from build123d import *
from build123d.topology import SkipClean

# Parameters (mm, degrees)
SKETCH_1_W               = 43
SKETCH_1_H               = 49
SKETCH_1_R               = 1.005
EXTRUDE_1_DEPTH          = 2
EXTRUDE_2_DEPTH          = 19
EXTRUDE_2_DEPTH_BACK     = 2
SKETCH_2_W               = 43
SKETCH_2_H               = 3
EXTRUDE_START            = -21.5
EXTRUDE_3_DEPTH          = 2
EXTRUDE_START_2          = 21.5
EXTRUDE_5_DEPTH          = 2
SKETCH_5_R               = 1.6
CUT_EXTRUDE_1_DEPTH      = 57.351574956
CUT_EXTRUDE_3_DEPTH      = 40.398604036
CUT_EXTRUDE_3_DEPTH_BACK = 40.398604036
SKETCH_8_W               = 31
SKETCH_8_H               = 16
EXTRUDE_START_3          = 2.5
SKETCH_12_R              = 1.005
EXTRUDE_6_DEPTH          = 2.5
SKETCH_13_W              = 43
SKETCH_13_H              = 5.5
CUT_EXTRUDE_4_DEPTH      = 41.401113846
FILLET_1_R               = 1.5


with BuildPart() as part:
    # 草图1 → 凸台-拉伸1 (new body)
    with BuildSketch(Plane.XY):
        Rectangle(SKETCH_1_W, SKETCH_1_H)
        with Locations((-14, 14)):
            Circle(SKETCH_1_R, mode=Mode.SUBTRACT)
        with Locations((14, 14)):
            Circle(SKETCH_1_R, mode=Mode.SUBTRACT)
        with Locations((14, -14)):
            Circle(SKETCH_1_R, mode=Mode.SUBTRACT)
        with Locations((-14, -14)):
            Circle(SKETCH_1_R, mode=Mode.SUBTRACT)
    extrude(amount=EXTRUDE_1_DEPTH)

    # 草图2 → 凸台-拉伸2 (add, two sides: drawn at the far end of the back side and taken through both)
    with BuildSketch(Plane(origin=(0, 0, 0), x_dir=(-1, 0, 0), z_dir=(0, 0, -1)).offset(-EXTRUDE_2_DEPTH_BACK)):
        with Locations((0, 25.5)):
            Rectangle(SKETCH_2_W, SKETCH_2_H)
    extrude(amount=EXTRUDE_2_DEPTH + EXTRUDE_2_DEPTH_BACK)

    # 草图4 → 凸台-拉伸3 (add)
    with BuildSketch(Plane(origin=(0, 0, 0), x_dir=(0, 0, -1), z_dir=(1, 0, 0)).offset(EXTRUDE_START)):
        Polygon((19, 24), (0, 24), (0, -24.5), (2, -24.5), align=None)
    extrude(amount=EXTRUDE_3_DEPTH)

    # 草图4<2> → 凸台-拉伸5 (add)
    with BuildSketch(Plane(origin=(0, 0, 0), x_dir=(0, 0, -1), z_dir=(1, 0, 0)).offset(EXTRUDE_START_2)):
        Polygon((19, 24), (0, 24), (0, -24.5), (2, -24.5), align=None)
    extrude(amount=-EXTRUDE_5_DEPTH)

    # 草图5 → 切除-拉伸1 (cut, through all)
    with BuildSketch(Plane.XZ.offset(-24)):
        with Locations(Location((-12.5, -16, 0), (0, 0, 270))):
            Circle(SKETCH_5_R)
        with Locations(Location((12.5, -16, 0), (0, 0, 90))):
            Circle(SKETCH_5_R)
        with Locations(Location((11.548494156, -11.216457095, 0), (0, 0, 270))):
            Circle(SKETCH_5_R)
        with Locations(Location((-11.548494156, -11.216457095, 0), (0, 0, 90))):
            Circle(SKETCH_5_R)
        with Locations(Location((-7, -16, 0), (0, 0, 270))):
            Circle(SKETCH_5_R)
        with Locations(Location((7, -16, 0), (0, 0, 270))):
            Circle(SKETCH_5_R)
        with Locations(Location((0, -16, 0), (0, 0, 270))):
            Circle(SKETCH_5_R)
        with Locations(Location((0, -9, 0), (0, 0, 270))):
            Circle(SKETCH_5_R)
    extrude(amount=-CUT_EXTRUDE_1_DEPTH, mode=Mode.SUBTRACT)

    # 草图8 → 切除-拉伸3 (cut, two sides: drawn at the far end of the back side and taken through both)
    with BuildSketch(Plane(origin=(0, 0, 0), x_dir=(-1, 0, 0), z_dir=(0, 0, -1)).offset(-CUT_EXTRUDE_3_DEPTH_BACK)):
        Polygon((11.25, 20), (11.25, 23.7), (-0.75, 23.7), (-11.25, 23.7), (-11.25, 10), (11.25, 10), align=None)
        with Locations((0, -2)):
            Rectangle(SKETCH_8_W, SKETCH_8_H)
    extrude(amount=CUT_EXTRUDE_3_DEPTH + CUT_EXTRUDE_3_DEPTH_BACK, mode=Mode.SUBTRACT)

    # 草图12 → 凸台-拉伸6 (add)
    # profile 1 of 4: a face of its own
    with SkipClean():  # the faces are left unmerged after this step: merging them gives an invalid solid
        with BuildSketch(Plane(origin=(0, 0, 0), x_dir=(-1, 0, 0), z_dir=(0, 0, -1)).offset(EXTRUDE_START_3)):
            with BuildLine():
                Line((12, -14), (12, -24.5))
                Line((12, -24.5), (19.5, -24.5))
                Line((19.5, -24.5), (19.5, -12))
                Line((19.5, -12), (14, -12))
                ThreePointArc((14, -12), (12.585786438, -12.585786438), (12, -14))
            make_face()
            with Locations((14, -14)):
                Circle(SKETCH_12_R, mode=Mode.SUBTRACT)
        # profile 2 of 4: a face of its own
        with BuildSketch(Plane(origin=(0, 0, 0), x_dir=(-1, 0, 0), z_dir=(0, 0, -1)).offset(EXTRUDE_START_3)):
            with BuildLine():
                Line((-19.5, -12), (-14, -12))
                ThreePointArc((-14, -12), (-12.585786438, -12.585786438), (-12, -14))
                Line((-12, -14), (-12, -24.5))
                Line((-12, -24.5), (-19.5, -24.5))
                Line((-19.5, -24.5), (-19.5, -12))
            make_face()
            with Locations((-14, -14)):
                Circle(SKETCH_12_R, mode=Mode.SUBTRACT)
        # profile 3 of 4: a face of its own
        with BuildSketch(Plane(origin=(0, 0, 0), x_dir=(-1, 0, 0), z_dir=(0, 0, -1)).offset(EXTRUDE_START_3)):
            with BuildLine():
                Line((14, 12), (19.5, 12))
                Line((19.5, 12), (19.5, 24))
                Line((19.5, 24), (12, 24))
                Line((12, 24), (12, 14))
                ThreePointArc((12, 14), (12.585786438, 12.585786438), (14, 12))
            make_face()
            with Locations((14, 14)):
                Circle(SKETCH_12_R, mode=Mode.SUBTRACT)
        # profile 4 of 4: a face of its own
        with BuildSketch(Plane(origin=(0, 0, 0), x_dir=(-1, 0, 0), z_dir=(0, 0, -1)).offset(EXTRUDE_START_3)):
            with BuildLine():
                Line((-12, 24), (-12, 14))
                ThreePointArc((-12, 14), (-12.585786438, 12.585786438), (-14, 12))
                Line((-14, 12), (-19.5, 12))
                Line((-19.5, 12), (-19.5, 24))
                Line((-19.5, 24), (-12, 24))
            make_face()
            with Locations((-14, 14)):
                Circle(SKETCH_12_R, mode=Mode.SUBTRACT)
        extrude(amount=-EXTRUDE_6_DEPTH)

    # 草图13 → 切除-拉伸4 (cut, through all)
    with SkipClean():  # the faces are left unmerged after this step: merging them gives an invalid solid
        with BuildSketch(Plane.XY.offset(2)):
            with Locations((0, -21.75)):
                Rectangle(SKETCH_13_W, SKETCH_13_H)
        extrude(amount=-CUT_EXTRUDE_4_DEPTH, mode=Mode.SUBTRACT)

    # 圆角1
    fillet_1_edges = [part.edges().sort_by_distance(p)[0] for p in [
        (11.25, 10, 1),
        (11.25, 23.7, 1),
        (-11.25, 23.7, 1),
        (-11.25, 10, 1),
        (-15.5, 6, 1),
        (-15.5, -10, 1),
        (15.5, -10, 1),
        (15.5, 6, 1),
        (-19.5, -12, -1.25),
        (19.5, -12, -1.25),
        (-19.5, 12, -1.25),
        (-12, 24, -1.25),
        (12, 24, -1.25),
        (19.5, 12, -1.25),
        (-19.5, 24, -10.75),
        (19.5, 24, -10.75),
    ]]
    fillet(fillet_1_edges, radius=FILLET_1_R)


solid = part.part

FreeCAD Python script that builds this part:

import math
import FreeCAD as App
import Part
import Sketcher
Q = App.Units.Quantity


def edges_at(feature, points):
    """Names of the edges that pass closest to the given points."""
    edges = feature.Shape.Edges
    near = lambda p: min(range(len(edges)), key=lambda i: edges[i].distToShape(Part.Vertex(*p))[0])
    return sorted({f"Edge{near(p) + 1}" for p in points})


def add_polygon(sketch, points):
    """Adds a closed chain of lines whose ends are joined by coincident constraints."""
    first, n = sketch.GeometryCount, len(points)
    for a, b in zip(points, points[1:] + points[:1]):
        sketch.addGeometry(Part.LineSegment(App.Vector(*a, 0), App.Vector(*b, 0)), False)
    for i in range(n):
        sketch.addConstraint(Sketcher.Constraint("Coincident", first + i, 2, first + (i + 1) % n, 1))

doc = App.newDocument("Part")
params = doc.addObject("Spreadsheet::Sheet", "Params")
for row, (alias, value) in enumerate([
    ("sketch1_diameter", "2.01 mm"),
    ("sketch1_width", "43 mm"),
    ("sketch1_height", "49 mm"),
    ("pad1_length", "2 mm"),
    ("sketch2_width", "43 mm"),
    ("sketch2_height", "3 mm"),
    ("pad2_length", "19 mm"),
    ("pad2_length2", "2 mm"),
    ("sketch3_height", "19 mm"),
    ("sketch3_height2", "2 mm"),
    ("sketch3_width", "48.5 mm"),
    ("pad3_length", "2 mm"),
    ("sketch4_height", "19 mm"),
    ("sketch4_height2", "2 mm"),
    ("sketch4_width", "48.5 mm"),
    ("pad4_length", "2 mm"),
    ("sketch5_diameter", "3.2 mm"),
    ("sketch6_width", "31 mm"),
    ("sketch6_height", "16 mm"),
    ("sketch6_width2", "22.5 mm"),
    ("sketch6_height2", "13.7 mm"),
    ("sketch7_radius", "2 mm"),
    ("sketch7_diameter", "2.01 mm"),
    ("sketch7_height", "12 mm"),
    ("sketch7_width", "7.5 mm"),
    ("sketch7_height2", "10.5 mm"),
    ("pad5_length", "2.5 mm"),
    ("sketch8_width", "43 mm"),
    ("sketch8_height", "5.5 mm"),
    ("fillet_radius", "1.5 mm"),
], start=1):
    params.set(f"A{row}", alias)
    params.set(f"B{row}", "=" + value)
    params.setAlias(f"B{row}", alias)

body = doc.addObject("PartDesign::Body", "Body")

sketch1 = body.newObject("Sketcher::SketchObject", "Sketch")
sketch1.AttachmentSupport = (doc.getObject("XY_Plane"), [""])
sketch1.MapMode = "FlatFace"
add_polygon(sketch1, [(-21.5, 24.5), (-21.5, -24.5), (21.5, -24.5), (21.5, 24.5)])
sketch1.addGeometry(Part.Circle(App.Vector(-14, -14, 0), App.Vector(0, 0, 1), 1), False)
sketch1.addGeometry(Part.Circle(App.Vector(14, -14, 0), App.Vector(0, 0, 1), 1), False)
sketch1.addGeometry(Part.Circle(App.Vector(-14, 14, 0), App.Vector(0, 0, 1), 1), False)
sketch1.addGeometry(Part.Circle(App.Vector(14, 14, 0), App.Vector(0, 0, 1), 1), False)
sketch1.addConstraint([
    Sketcher.Constraint("Vertical", 0),
    Sketcher.Constraint("Horizontal", 1),
    Sketcher.Constraint("Vertical", 2),
    Sketcher.Constraint("Horizontal", 3),
    Sketcher.Constraint("Equal", 4, 5),
    Sketcher.Constraint("Equal", 5, 6),
    Sketcher.Constraint("Equal", 6, 7),
    Sketcher.Constraint("Symmetric", 5, 3, 6, 3, -1, 1),
    Sketcher.Constraint("Symmetric", 4, 3, 7, 3, -1, 1),
    Sketcher.Constraint("Symmetric", 0, 2, 2, 2, -1, 1),
    Sketcher.Constraint("Symmetric", 4, 3, 5, 3, -2),
    Sketcher.Constraint("Diameter", 4, Q("2.01 mm")),
    Sketcher.Constraint("DistanceX", 1, 1, 1, 2, Q("43 mm")),
    Sketcher.Constraint("DistanceY", 0, 2, 0, 1, Q("49 mm")),
    Sketcher.Constraint("DistanceX", 4, 3, -1, 1, Q("14 mm")),
    Sketcher.Constraint("DistanceY", 4, 3, -1, 1, Q("14 mm")),
])
sketch1.setExpression("Constraints[15]", "Params.sketch1_diameter")
sketch1.setExpression("Constraints[16]", "Params.sketch1_width")
sketch1.setExpression("Constraints[17]", "Params.sketch1_height")
pad1 = body.newObject("PartDesign::Pad", "Pad")
pad1.Profile = sketch1
pad1.setExpression("Length", "Params.pad1_length")

sketch2 = body.newObject("Sketcher::SketchObject", "Sketch001")
sketch2.AttachmentSupport = (doc.getObject("XY_Plane"), [""])
sketch2.MapMode = "FlatFace"
add_polygon(sketch2, [(21.5, 27), (21.5, 24), (-21.5, 24), (-21.5, 27)])
sketch2.addConstraint([
    Sketcher.Constraint("Vertical", 0),
    Sketcher.Constraint("Horizontal", 1),
    Sketcher.Constraint("Vertical", 2),
    Sketcher.Constraint("Horizontal", 3),
    Sketcher.Constraint("DistanceX", 1, 2, 1, 1, Q("43 mm")),
    Sketcher.Constraint("DistanceY", 0, 2, 0, 1, Q("3 mm")),
    Sketcher.Constraint("DistanceY", -1, 1, 0, 2, Q("24 mm")),
    Sketcher.Constraint("DistanceX", -1, 1, 0, 2, Q("21.5 mm")),
])
sketch2.setExpression("Constraints[8]", "Params.sketch2_width")
sketch2.setExpression("Constraints[9]", "Params.sketch2_height")
pad2 = body.newObject("PartDesign::Pad", "Pad001")
pad2.Profile = sketch2
pad2.Type = "TwoLengths"
pad2.setExpression("Length", "Params.pad2_length")
pad2.setExpression("Length2", "Params.pad2_length2")
pad2.Reversed = True

sketch3 = body.newObject("Sketcher::SketchObject", "Sketch002")
sketch3.AttachmentSupport = (doc.getObject("YZ_Plane"), [""])
sketch3.MapMode = "FlatFace"
sketch3.AttachmentOffset = App.Placement(App.Vector(0, 0, -21.5), App.Rotation())
add_polygon(sketch3, [(24, -19), (24, 0), (-24.5, 0), (-24.5, -2)])
sketch3.addConstraint([
    Sketcher.Constraint("Vertical", 0),
    Sketcher.Constraint("Horizontal", 1),
    Sketcher.Constraint("Vertical", 2),
    Sketcher.Constraint("PointOnObject", 0, 2, -1),
    Sketcher.Constraint("DistanceY", 0, 1, 0, 2, Q("19 mm")),
    Sketcher.Constraint("DistanceY", 2, 2, 2, 1, Q("2 mm")),
    Sketcher.Constraint("DistanceX", 1, 2, 1, 1, Q("48.5 mm")),
    Sketcher.Constraint("DistanceX", -1, 1, 0, 2, Q("24 mm")),
])
sketch3.setExpression("Constraints[8]", "Params.sketch3_height")
sketch3.setExpression("Constraints[9]", "Params.sketch3_height2")
sketch3.setExpression("Constraints[10]", "Params.sketch3_width")
pad3 = body.newObject("PartDesign::Pad", "Pad002")
pad3.Profile = sketch3
pad3.setExpression("Length", "Params.pad3_length")

sketch4 = body.newObject("Sketcher::SketchObject", "Sketch003")
sketch4.AttachmentSupport = (doc.getObject("YZ_Plane"), [""])
sketch4.MapMode = "FlatFace"
sketch4.AttachmentOffset = App.Placement(App.Vector(0, 0, 21.5), App.Rotation())
add_polygon(sketch4, [(24, -19), (24, 0), (-24.5, 0), (-24.5, -2)])
sketch4.addConstraint([
    Sketcher.Constraint("Vertical", 0),
    Sketcher.Constraint("Horizontal", 1),
    Sketcher.Constraint("Vertical", 2),
    Sketcher.Constraint("PointOnObject", 0, 2, -1),
    Sketcher.Constraint("DistanceY", 0, 1, 0, 2, Q("19 mm")),
    Sketcher.Constraint("DistanceY", 2, 2, 2, 1, Q("2 mm")),
    Sketcher.Constraint("DistanceX", 1, 2, 1, 1, Q("48.5 mm")),
    Sketcher.Constraint("DistanceX", -1, 1, 0, 2, Q("24 mm")),
])
sketch4.setExpression("Constraints[8]", "Params.sketch4_height")
sketch4.setExpression("Constraints[9]", "Params.sketch4_height2")
sketch4.setExpression("Constraints[10]", "Params.sketch4_width")
pad4 = body.newObject("PartDesign::Pad", "Pad003")
pad4.Profile = sketch4
pad4.setExpression("Length", "Params.pad4_length")
pad4.Reversed = True

sketch5 = body.newObject("Sketcher::SketchObject", "Sketch004")
sketch5.AttachmentSupport = (doc.getObject("XZ_Plane"), [""])
sketch5.MapMode = "FlatFace"
sketch5.AttachmentOffset = App.Placement(App.Vector(0, 0, -24), App.Rotation())
sketch5.addGeometry([
    Part.Circle(App.Vector(-12.5, -16, 0), App.Vector(0, 0, 1), 1.6),
    Part.Circle(App.Vector(12.5, -16, 0), App.Vector(0, 0, 1), 1.6),
    Part.Circle(App.Vector(11.5, -11.2, 0), App.Vector(0, 0, 1), 1.6),
    Part.Circle(App.Vector(-11.5, -11.2, 0), App.Vector(0, 0, 1), 1.6),
    Part.Circle(App.Vector(-7, -16, 0), App.Vector(0, 0, 1), 1.6),
    Part.Circle(App.Vector(7, -16, 0), App.Vector(0, 0, 1), 1.6),
    Part.Circle(App.Vector(0, -16, 0), App.Vector(0, 0, 1), 1.6),
    Part.Circle(App.Vector(0, -9, 0), App.Vector(0, 0, 1), 1.6),
], False)
sketch5.addConstraint([
    Sketcher.Constraint("Equal", 0, 1),
    Sketcher.Constraint("Equal", 1, 2),
    Sketcher.Constraint("Equal", 2, 3),
    Sketcher.Constraint("Equal", 3, 4),
    Sketcher.Constraint("Equal", 4, 5),
    Sketcher.Constraint("Equal", 5, 6),
    Sketcher.Constraint("Equal", 6, 7),
    Sketcher.Constraint("Symmetric", 0, 3, 1, 3, -2),
    Sketcher.Constraint("Symmetric", 2, 3, 3, 3, -2),
    Sketcher.Constraint("Symmetric", 4, 3, 5, 3, -2),
    Sketcher.Constraint("PointOnObject", 6, 3, -2),
    Sketcher.Constraint("PointOnObject", 7, 3, -2),
    Sketcher.Constraint("Horizontal", 1, 3, 4, 3),
    Sketcher.Constraint("Horizontal", 5, 3, 6, 3),
    Sketcher.Constraint("Diameter", 0, Q("3.2 mm")),
    Sketcher.Constraint("DistanceY", 0, 3, -1, 1, Q("16 mm")),
    Sketcher.Constraint("DistanceX", 4, 3, -1, 1, Q("7 mm")),
    Sketcher.Constraint("DistanceY", 7, 3, -1, 1, Q("9 mm")),
    Sketcher.Constraint("DistanceX", 0, 3, 1, 3, Q("25 mm")),
    Sketcher.Constraint("DistanceX", 3, 3, 2, 3, Q("23.096988 mm")),
    Sketcher.Constraint("DistanceY", 2, 3, -1, 1, Q("11.216457 mm")),
])
sketch5.setExpression("Constraints[14]", "Params.sketch5_diameter")
pocket1 = body.newObject("PartDesign::Pocket", "Pocket")
pocket1.Profile = sketch5
pocket1.Type = "ThroughAll"

sketch6 = body.newObject("Sketcher::SketchObject", "Sketch005")
sketch6.AttachmentSupport = (doc.getObject("XY_Plane"), [""])
sketch6.MapMode = "FlatFace"
add_polygon(sketch6, [(-11, 24), (11, 24), (11, 10), (-11, 10)])
add_polygon(sketch6, [(16, 6), (16, -10), (-16, -10), (-16, 6)])
sketch6.addConstraint([
    Sketcher.Constraint("Horizontal", 0),
    Sketcher.Constraint("Vertical", 1),
    Sketcher.Constraint("Horizontal", 2),
    Sketcher.Constraint("Vertical", 3),
    Sketcher.Constraint("Vertical", 4),
    Sketcher.Constraint("Horizontal", 5),
    Sketcher.Constraint("Vertical", 6),
    Sketcher.Constraint("Horizontal", 7),
    Sketcher.Constraint("DistanceX", 5, 2, 5, 1, Q("31 mm")),
    Sketcher.Constraint("DistanceY", 4, 2, 4, 1, Q("16 mm")),
    Sketcher.Constraint("DistanceX", 0, 1, 0, 2, Q("22.5 mm")),
    Sketcher.Constraint("DistanceY", 1, 2, 1, 1, Q("13.7 mm")),
    Sketcher.Constraint("DistanceY", -1, 1, 1, 2, Q("10 mm")),
    Sketcher.Constraint("DistanceY", 4, 2, -1, 1, Q("10 mm")),
    Sketcher.Constraint("DistanceX", -1, 1, 4, 2, Q("15.5 mm")),
    Sketcher.Constraint("DistanceX", -1, 1, 0, 2, Q("11.25 mm")),
])
sketch6.setExpression("Constraints[16]", "Params.sketch6_width")
sketch6.setExpression("Constraints[17]", "Params.sketch6_height")
sketch6.setExpression("Constraints[18]", "Params.sketch6_width2")
sketch6.setExpression("Constraints[19]", "Params.sketch6_height2")
pocket2 = body.newObject("PartDesign::Pocket", "Pocket001")
pocket2.Profile = sketch6
pocket2.Type = "ThroughAll"
pocket2.Midplane = True

sketch7 = body.newObject("Sketcher::SketchObject", "Sketch006")
sketch7.AttachmentSupport = (doc.getObject("XY_Plane"), [""])
sketch7.MapMode = "FlatFace"
sketch7.AttachmentOffset = App.Placement(App.Vector(0, 0, -2.5), App.Rotation())
sketch7.addGeometry([
    Part.LineSegment(App.Vector(-12, -14, 0), App.Vector(-12, -24.5, 0)),
    Part.LineSegment(App.Vector(-12, -24.5, 0), App.Vector(-19.5, -24.5, 0)),
    Part.LineSegment(App.Vector(-19.5, -24.5, 0), App.Vector(-19.5, -12, 0)),
    Part.LineSegment(App.Vector(-19.5, -12, 0), App.Vector(-14, -12, 0)),
    Part.ArcOfCircle(Part.Circle(App.Vector(-14, -14, 0), App.Vector(0, 0, 1), 2), math.radians(0), math.radians(90)),
    Part.Circle(App.Vector(-14, -14, 0), App.Vector(0, 0, 1), 1),
    Part.LineSegment(App.Vector(14, -12, 0), App.Vector(19.5, -12, 0)),
    Part.LineSegment(App.Vector(19.5, -12, 0), App.Vector(19.5, -24.5, 0)),
    Part.LineSegment(App.Vector(19.5, -24.5, 0), App.Vector(12, -24.5, 0)),
    Part.LineSegment(App.Vector(12, -24.5, 0), App.Vector(12, -14, 0)),
    Part.ArcOfCircle(Part.Circle(App.Vector(14, -14, 0), App.Vector(0, 0, 1), 2), math.radians(90), math.radians(180)),
    Part.Circle(App.Vector(14, -14, 0), App.Vector(0, 0, 1), 1),
    Part.LineSegment(App.Vector(-14, 12, 0), App.Vector(-19.5, 12, 0)),
    Part.LineSegment(App.Vector(-19.5, 12, 0), App.Vector(-19.5, 24, 0)),
    Part.LineSegment(App.Vector(-19.5, 24, 0), App.Vector(-12, 24, 0)),
    Part.LineSegment(App.Vector(-12, 24, 0), App.Vector(-12, 14, 0)),
    Part.ArcOfCircle(Part.Circle(App.Vector(-14, 14, 0), App.Vector(0, 0, 1), 2), math.radians(-90), math.radians(0)),
    Part.Circle(App.Vector(-14, 14, 0), App.Vector(0, 0, 1), 1),
    Part.LineSegment(App.Vector(12, 14, 0), App.Vector(12, 24, 0)),
    Part.LineSegment(App.Vector(12, 24, 0), App.Vector(19.5, 24, 0)),
    Part.LineSegment(App.Vector(19.5, 24, 0), App.Vector(19.5, 12, 0)),
    Part.LineSegment(App.Vector(19.5, 12, 0), App.Vector(14, 12, 0)),
    Part.ArcOfCircle(Part.Circle(App.Vector(14, 14, 0), App.Vector(0, 0, 1), 2), math.radians(-180), math.radians(-90)),
    Part.Circle(App.Vector(14, 14, 0), App.Vector(0, 0, 1), 1),
], False)
sketch7.addConstraint([
    Sketcher.Constraint("Coincident", 0, 2, 1, 1),
    Sketcher.Constraint("Coincident", 1, 2, 2, 1),
    Sketcher.Constraint("Coincident", 2, 2, 3, 1),
    Sketcher.Constraint("Tangent", 3, 2, 4, 2),
    Sketcher.Constraint("Tangent", 4, 1, 0, 1),
    Sketcher.Constraint("Coincident", 6, 2, 7, 1),
    Sketcher.Constraint("Coincident", 7, 2, 8, 1),
    Sketcher.Constraint("Coincident", 8, 2, 9, 1),
    Sketcher.Constraint("Tangent", 9, 2, 10, 2),
    Sketcher.Constraint("Tangent", 10, 1, 6, 1),
    Sketcher.Constraint("Coincident", 12, 2, 13, 1),
    Sketcher.Constraint("Coincident", 13, 2, 14, 1),
    Sketcher.Constraint("Coincident", 14, 2, 15, 1),
    Sketcher.Constraint("Tangent", 15, 2, 16, 2),
    Sketcher.Constraint("Tangent", 16, 1, 12, 1),
    Sketcher.Constraint("Coincident", 18, 2, 19, 1),
    Sketcher.Constraint("Coincident", 19, 2, 20, 1),
    Sketcher.Constraint("Coincident", 20, 2, 21, 1),
    Sketcher.Constraint("Tangent", 21, 2, 22, 2),
    Sketcher.Constraint("Tangent", 22, 1, 18, 1),
    Sketcher.Constraint("Vertical", 0),
    Sketcher.Constraint("Horizontal", 1),
    Sketcher.Constraint("Vertical", 2),
    Sketcher.Constraint("Horizontal", 3),
    Sketcher.Constraint("Horizontal", 6),
    Sketcher.Constraint("Vertical", 7),
    Sketcher.Constraint("Horizontal", 8),
    Sketcher.Constraint("Vertical", 9),
    Sketcher.Constraint("Horizontal", 12),
    Sketcher.Constraint("Vertical", 13),
    Sketcher.Constraint("Horizontal", 14),
    Sketcher.Constraint("Vertical", 15),
    Sketcher.Constraint("Vertical", 18),
    Sketcher.Constraint("Horizontal", 19),
    Sketcher.Constraint("Vertical", 20),
    Sketcher.Constraint("Horizontal", 21),
    Sketcher.Constraint("Coincident", 5, 3, 4, 3),
    Sketcher.Constraint("Coincident", 11, 3, 10, 3),
    Sketcher.Constraint("Coincident", 17, 3, 16, 3),
    Sketcher.Constraint("Coincident", 23, 3, 22, 3),
    Sketcher.Constraint("Equal", 4, 10),
    Sketcher.Constraint("Equal", 5, 11),
    Sketcher.Constraint("Equal", 10, 16),
    Sketcher.Constraint("Equal", 11, 17),
    Sketcher.Constraint("Equal", 16, 22),
    Sketcher.Constraint("Equal", 17, 23),
    Sketcher.Constraint("Symmetric", 10, 3, 16, 3, -1, 1),
    Sketcher.Constraint("Symmetric", 4, 3, 22, 3, -1, 1),
    Sketcher.Constraint("Symmetric", 4, 3, 10, 3, -2),
    Sketcher.Constraint("Symmetric", 1, 2, 7, 2, -2),
    Sketcher.Constraint("Symmetric", 13, 2, 19, 2, -2),
    Sketcher.Constraint("Vertical", 2, 2, 12, 2),
    Sketcher.Constraint("Radius", 4, Q("2 mm")),
    Sketcher.Constraint("Diameter", 5, Q("2.01 mm")),
    Sketcher.Constraint("DistanceY", 13, 1, 13, 2, Q("12 mm")),
    Sketcher.Constraint("DistanceX", 1, 2, 1, 1, Q("7.5 mm")),
    Sketcher.Constraint("DistanceY", 0, 2, 0, 1, Q("10.5 mm")),
    Sketcher.Constraint("DistanceX", 4, 3, -1, 1, Q("14 mm")),
    Sketcher.Constraint("DistanceY", 4, 3, -1, 1, Q("14 mm")),
])
sketch7.setExpression("Constraints[52]", "Params.sketch7_radius")
sketch7.setExpression("Constraints[53]", "Params.sketch7_diameter")
sketch7.setExpression("Constraints[54]", "Params.sketch7_height")
sketch7.setExpression("Constraints[55]", "Params.sketch7_width")
sketch7.setExpression("Constraints[56]", "Params.sketch7_height2")
pad5 = body.newObject("PartDesign::Pad", "Pad004")
pad5.Profile = sketch7
pad5.setExpression("Length", "Params.pad5_length")

sketch8 = body.newObject("Sketcher::SketchObject", "Sketch007")
sketch8.AttachmentSupport = (doc.getObject("XY_Plane"), [""])
sketch8.MapMode = "FlatFace"
sketch8.AttachmentOffset = App.Placement(App.Vector(0, 0, 2), App.Rotation())
add_polygon(sketch8, [(-22, -19), (-22, -24), (22, -24), (22, -19)])
sketch8.addConstraint([
    Sketcher.Constraint("Vertical", 0),
    Sketcher.Constraint("Horizontal", 1),
    Sketcher.Constraint("Vertical", 2),
    Sketcher.Constraint("Horizontal", 3),
    Sketcher.Constraint("DistanceX", 1, 1, 1, 2, Q("43 mm")),
    Sketcher.Constraint("DistanceY", 0, 2, 0, 1, Q("5.5 mm")),
    Sketcher.Constraint("DistanceY", 2, 2, -1, 1, Q("19 mm")),
    Sketcher.Constraint("DistanceX", 0, 2, -1, 1, Q("21.5 mm")),
])
sketch8.setExpression("Constraints[8]", "Params.sketch8_width")
sketch8.setExpression("Constraints[9]", "Params.sketch8_height")
pocket3 = body.newObject("PartDesign::Pocket", "Pocket002")
pocket3.Profile = sketch8
pocket3.Type = "ThroughAll"
doc.recompute()

fillet = body.newObject("PartDesign::Fillet", "Fillet")
fillet.Base = (pocket3, edges_at(pocket3, [
    (11.25, 10, 1),
    (11.25, 23.7, 1),
    (-11.25, 23.7, 1),
    (-11.25, 10, 1),
    (-15.5, 6, 1),
    (-15.5, -10, 1),
    (15.5, -10, 1),
    (15.5, 6, 1),
    (-19.5, -12, -1.25),
    (19.5, -12, -1.25),
    (-19.5, 12, -1.25),
    (-12, 24, -1.25),
    (12, 24, -1.25),
    (19.5, 12, -1.25),
    (-19.5, 24, -10.75),
    (19.5, 24, -10.75),
]))
fillet.setExpression("Radius", "Params.fillet_radius")

doc.recompute()
